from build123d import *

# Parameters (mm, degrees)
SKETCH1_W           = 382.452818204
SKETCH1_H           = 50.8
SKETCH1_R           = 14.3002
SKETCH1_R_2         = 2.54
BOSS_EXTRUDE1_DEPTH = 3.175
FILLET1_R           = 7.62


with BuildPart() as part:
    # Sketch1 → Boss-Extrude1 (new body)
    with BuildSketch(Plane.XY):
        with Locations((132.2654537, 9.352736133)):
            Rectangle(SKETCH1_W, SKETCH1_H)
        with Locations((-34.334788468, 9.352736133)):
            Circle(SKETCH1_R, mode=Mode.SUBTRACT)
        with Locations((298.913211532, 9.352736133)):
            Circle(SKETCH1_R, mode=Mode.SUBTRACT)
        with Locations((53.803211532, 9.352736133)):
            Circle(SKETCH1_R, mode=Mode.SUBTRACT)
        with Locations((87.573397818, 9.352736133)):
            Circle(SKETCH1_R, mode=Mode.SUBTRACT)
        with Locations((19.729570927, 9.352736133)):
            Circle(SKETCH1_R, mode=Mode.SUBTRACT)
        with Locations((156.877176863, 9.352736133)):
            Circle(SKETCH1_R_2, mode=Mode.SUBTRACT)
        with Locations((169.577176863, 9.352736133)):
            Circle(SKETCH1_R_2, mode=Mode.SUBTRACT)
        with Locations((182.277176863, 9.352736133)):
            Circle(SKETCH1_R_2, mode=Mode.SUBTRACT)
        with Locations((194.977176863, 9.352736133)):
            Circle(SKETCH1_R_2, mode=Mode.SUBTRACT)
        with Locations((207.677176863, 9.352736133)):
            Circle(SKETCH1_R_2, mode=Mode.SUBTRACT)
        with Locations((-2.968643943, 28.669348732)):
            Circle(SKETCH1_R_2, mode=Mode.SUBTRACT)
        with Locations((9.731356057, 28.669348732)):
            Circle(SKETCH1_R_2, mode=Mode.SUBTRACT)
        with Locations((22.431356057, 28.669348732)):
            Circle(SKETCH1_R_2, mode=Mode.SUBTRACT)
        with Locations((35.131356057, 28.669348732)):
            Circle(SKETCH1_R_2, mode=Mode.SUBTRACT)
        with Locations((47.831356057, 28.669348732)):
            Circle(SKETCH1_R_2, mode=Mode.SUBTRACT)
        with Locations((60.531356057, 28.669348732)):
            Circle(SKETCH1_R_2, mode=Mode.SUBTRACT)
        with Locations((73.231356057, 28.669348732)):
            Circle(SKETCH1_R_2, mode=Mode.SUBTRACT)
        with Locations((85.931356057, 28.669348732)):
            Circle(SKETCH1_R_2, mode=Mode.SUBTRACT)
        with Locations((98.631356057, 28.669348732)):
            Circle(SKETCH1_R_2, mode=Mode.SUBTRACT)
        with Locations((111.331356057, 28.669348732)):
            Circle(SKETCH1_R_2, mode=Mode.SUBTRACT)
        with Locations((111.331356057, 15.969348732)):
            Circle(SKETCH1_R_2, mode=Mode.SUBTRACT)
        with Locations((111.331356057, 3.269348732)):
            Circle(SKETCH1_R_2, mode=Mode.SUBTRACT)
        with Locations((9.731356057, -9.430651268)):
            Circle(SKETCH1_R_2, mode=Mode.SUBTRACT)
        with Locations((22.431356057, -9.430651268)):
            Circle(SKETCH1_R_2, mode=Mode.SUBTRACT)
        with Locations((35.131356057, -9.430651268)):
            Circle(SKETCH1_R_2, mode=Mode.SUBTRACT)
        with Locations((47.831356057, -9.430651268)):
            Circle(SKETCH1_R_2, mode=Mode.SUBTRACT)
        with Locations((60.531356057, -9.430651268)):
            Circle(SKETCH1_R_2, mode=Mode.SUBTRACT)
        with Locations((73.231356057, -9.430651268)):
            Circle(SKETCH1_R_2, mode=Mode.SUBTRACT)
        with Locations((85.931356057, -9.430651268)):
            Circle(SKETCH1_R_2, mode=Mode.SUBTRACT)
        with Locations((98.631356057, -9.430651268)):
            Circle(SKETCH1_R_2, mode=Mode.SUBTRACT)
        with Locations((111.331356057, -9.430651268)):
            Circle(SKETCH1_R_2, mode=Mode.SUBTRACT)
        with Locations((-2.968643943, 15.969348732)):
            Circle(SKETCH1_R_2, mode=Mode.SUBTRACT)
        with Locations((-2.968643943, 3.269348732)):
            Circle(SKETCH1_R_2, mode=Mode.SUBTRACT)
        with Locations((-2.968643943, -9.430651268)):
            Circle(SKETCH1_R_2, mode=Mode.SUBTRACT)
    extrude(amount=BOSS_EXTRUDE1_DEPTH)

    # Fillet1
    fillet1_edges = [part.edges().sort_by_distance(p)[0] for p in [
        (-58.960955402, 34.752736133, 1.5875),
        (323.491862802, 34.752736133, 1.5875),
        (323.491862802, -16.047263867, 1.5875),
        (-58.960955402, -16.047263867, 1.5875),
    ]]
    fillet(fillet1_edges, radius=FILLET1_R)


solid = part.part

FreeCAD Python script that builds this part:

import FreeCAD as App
import Part
import Sketcher
Q = App.Units.Quantity


def edges_at(feature, points):
    """Names of the edges that pass closest to the given points."""
    edges = feature.Shape.Edges
    near = lambda p: min(range(len(edges)), key=lambda i: edges[i].distToShape(Part.Vertex(*p))[0])
    return sorted({f"Edge{near(p) + 1}" for p in points})

doc = App.newDocument("Part")
params = doc.addObject("Spreadsheet::Sheet", "Params")
for row, (alias, value) in enumerate([
    ("sketch1_diameter", "0.2 in"),
    ("sketch1_height", "2 in"),
    ("sketch1_diameter2", "1.126 in"),
    ("pad1_length", "0.125 in"),
    ("fillet_radius", "0.3 in"),
], start=1):
    params.set(f"A{row}", alias)
    params.set(f"B{row}", "=" + value)
    params.setAlias(f"B{row}", alias)

body = doc.addObject("PartDesign::Body", "Body")

sketch1 = body.newObject("Sketcher::SketchObject", "Sketch")
sketch1.AttachmentSupport = (doc.getObject("XY_Plane"), [""])
sketch1.MapMode = "FlatFace"
sketch1.addGeometry([
    Part.LineSegment(App.Vector(-58.960955, 34.752736, 0), App.Vector(-58.960955, -16.047264, 0)),
    Part.LineSegment(App.Vector(-58.960955, -16.047264, 0), App.Vector(323.491863, -16.047264, 0)),
    Part.LineSegment(App.Vector(323.491863, -16.047264, 0), App.Vector(323.491863, 34.752736, 0)),
    Part.LineSegment(App.Vector(323.491863, 34.752736, 0), App.Vector(-58.960955, 34.752736, 0)),
    Part.Circle(App.Vector(-2.968644, -9.430651, 0), App.Vector(0, 0, 1), 2.54),
    Part.Circle(App.Vector(9.731356, -9.430651, 0), App.Vector(0, 0, 1), 2.54),
    Part.Circle(App.Vector(22.431356, -9.430651, 0), App.Vector(0, 0, 1), 2.54),
    Part.Circle(App.Vector(35.131356, -9.430651, 0), App.Vector(0, 0, 1), 2.54),
    Part.Circle(App.Vector(47.831356, -9.430651, 0), App.Vector(0, 0, 1), 2.54),
    Part.Circle(App.Vector(60.531356, -9.430651, 0), App.Vector(0, 0, 1), 2.54),
    Part.Circle(App.Vector(73.231356, -9.430651, 0), App.Vector(0, 0, 1), 2.54),
    Part.Circle(App.Vector(85.931356, -9.430651, 0), App.Vector(0, 0, 1), 2.54),
    Part.Circle(App.Vector(98.631356, -9.430651, 0), App.Vector(0, 0, 1), 2.54),
    Part.Circle(App.Vector(111.331356, -9.430651, 0), App.Vector(0, 0, 1), 2.54),
    Part.Circle(App.Vector(-2.968644, 3.269349, 0), App.Vector(0, 0, 1), 2.54),
    Part.Circle(App.Vector(-34.334788, 9.352736, 0), App.Vector(0, 0, 1), 14.3002),
    Part.Circle(App.Vector(19.729571, 9.352736, 0), App.Vector(0, 0, 1), 14.3002),
    Part.Circle(App.Vector(111.331356, 3.269349, 0), App.Vector(0, 0, 1), 2.54),
    Part.Circle(App.Vector(53.803212, 9.352736, 0), App.Vector(0, 0, 1), 14.3002),
    Part.Circle(App.Vector(87.573398, 9.352736, 0), App.Vector(0, 0, 1), 14.3002),
    Part.Circle(App.Vector(156.877177, 9.352736, 0), App.Vector(0, 0, 1), 2.54),
    Part.Circle(App.Vector(169.577177, 9.352736, 0), App.Vector(0, 0, 1), 2.54),
    Part.Circle(App.Vector(182.277177, 9.352736, 0), App.Vector(0, 0, 1), 2.54),
    Part.Circle(App.Vector(194.977177, 9.352736, 0), App.Vector(0, 0, 1), 2.54),
    Part.Circle(App.Vector(207.677177, 9.352736, 0), App.Vector(0, 0, 1), 2.54),
    Part.Circle(App.Vector(298.913212, 9.352736, 0), App.Vector(0, 0, 1), 14.3002),
    Part.Circle(App.Vector(-2.968644, 15.969349, 0), App.Vector(0, 0, 1), 2.54),
    Part.Circle(App.Vector(111.331356, 15.969349, 0), App.Vector(0, 0, 1), 2.54),
    Part.Circle(App.Vector(-2.968644, 28.669349, 0), App.Vector(0, 0, 1), 2.54),
    Part.Circle(App.Vector(9.731356, 28.669349, 0), App.Vector(0, 0, 1), 2.54),
    Part.Circle(App.Vector(22.431356, 28.669349, 0), App.Vector(0, 0, 1), 2.54),
    Part.Circle(App.Vector(35.131356, 28.669349, 0), App.Vector(0, 0, 1), 2.54),
    Part.Circle(App.Vector(47.831356, 28.669349, 0), App.Vector(0, 0, 1), 2.54),
    Part.Circle(App.Vector(60.531356, 28.669349, 0), App.Vector(0, 0, 1), 2.54),
    Part.Circle(App.Vector(73.231356, 28.669349, 0), App.Vector(0, 0, 1), 2.54),
    Part.Circle(App.Vector(85.931356, 28.669349, 0), App.Vector(0, 0, 1), 2.54),
    Part.Circle(App.Vector(98.631356, 28.669349, 0), App.Vector(0, 0, 1), 2.54),
    Part.Circle(App.Vector(111.331356, 28.669349, 0), App.Vector(0, 0, 1), 2.54),
], False)
sketch1.addConstraint([
    Sketcher.Constraint("Coincident", 0, 2, 1, 1),
    Sketcher.Constraint("Coincident", 1, 2, 2, 1),
    Sketcher.Constraint("Coincident", 2, 2, 3, 1),
    Sketcher.Constraint("Coincident", 3, 2, 0, 1),
    Sketcher.Constraint("Vertical", 0),
    Sketcher.Constraint("Horizontal", 1),
    Sketcher.Constraint("Vertical", 2),
    Sketcher.Constraint("Horizontal", 3),
    Sketcher.Constraint("Equal", 4, 5),
    Sketcher.Constraint("Equal", 5, 6),
    Sketcher.Constraint("Equal", 6, 7),
    Sketcher.Constraint("Equal", 7, 8),
    Sketcher.Constraint("Equal", 8, 9),
    Sketcher.Constraint("Equal", 9, 10),
    Sketcher.Constraint("Equal", 10, 11),
    Sketcher.Constraint("Equal", 11, 12),
    Sketcher.Constraint("Equal", 12, 13),
    Sketcher.Constraint("Equal", 13, 14),
    Sketcher.Constraint("Equal", 15, 16),
    Sketcher.Constraint("Equal", 14, 17),
    Sketcher.Constraint("Equal", 16, 18),
    Sketcher.Constraint("Equal", 18, 19),
    Sketcher.Constraint("Equal", 17, 20),
    Sketcher.Constraint("Equal", 20, 21),
    Sketcher.Constraint("Equal", 21, 22),
    Sketcher.Constraint("Equal", 22, 23),
    Sketcher.Constraint("Equal", 23, 24),
    Sketcher.Constraint("Equal", 19, 25),
    Sketcher.Constraint("Equal", 24, 26),
    Sketcher.Constraint("Equal", 26, 27),
    Sketcher.Constraint("Equal", 27, 28),
    Sketcher.Constraint("Equal", 28, 29),
    Sketcher.Constraint("Equal", 29, 30),
    Sketcher.Constraint("Equal", 30, 31),
    Sketcher.Constraint("Equal", 31, 32),
    Sketcher.Constraint("Equal", 32, 33),
    Sketcher.Constraint("Equal", 33, 34),
    Sketcher.Constraint("Equal", 34, 35),
    Sketcher.Constraint("Equal", 35, 36),
    Sketcher.Constraint("Equal", 36, 37),
    Sketcher.Constraint("Horizontal", 4, 3, 5, 3),
    Sketcher.Constraint("Horizontal", 5, 3, 6, 3),
    Sketcher.Constraint("Horizontal", 6, 3, 7, 3),
    Sketcher.Constraint("Horizontal", 7, 3, 8, 3),
    Sketcher.Constraint("Horizontal", 8, 3, 9, 3),
    Sketcher.Constraint("Horizontal", 9, 3, 10, 3),
    Sketcher.Constraint("Horizontal", 10, 3, 11, 3),
    Sketcher.Constraint("Horizontal", 11, 3, 12, 3),
    Sketcher.Constraint("Horizontal", 12, 3, 13, 3),
    Sketcher.Constraint("Horizontal", 15, 3, 16, 3),
    Sketcher.Constraint("Horizontal", 14, 3, 17, 3),
    Sketcher.Constraint("Horizontal", 16, 3, 18, 3),
    Sketcher.Constraint("Horizontal", 18, 3, 19, 3),
    Sketcher.Constraint("Horizontal", 19, 3, 20, 3),
    Sketcher.Constraint("Horizontal", 20, 3, 21, 3),
    Sketcher.Constraint("Horizontal", 21, 3, 22, 3),
    Sketcher.Constraint("Horizontal", 22, 3, 23, 3),
    Sketcher.Constraint("Horizontal", 23, 3, 24, 3),
    Sketcher.Constraint("Horizontal", 24, 3, 25, 3),
    Sketcher.Constraint("Horizontal", 26, 3, 27, 3),
    Sketcher.Constraint("Horizontal", 28, 3, 29, 3),
    Sketcher.Constraint("Horizontal", 29, 3, 30, 3),
    Sketcher.Constraint("Horizontal", 30, 3, 31, 3),
    Sketcher.Constraint("Horizontal", 31, 3, 32, 3),
    Sketcher.Constraint("Horizontal", 32, 3, 33, 3),
    Sketcher.Constraint("Horizontal", 33, 3, 34, 3),
    Sketcher.Constraint("Horizontal", 34, 3, 35, 3),
    Sketcher.Constraint("Horizontal", 35, 3, 36, 3),
    Sketcher.Constraint("Horizontal", 36, 3, 37, 3),
    Sketcher.Constraint("Vertical", 4, 3, 14, 3),
    Sketcher.Constraint("Vertical", 13, 3, 17, 3),
    Sketcher.Constraint("Vertical", 14, 3, 26, 3),
    Sketcher.Constraint("Vertical", 17, 3, 27, 3),
    Sketcher.Constraint("Vertical", 26, 3, 28, 3),
    Sketcher.Constraint("Vertical", 5, 3, 29, 3),
    Sketcher.Constraint("Vertical", 6, 3, 30, 3),
    Sketcher.Constraint("Vertical", 7, 3, 31, 3),
    Sketcher.Constraint("Vertical", 8, 3, 32, 3),
    Sketcher.Constraint("Vertical", 9, 3, 33, 3),
    Sketcher.Constraint("Vertical", 10, 3, 34, 3),
    Sketcher.Constraint("Vertical", 11, 3, 35, 3),
    Sketcher.Constraint("Vertical", 12, 3, 36, 3),
    Sketcher.Constraint("Vertical", 27, 3, 37, 3),
    Sketcher.Constraint("Diameter", 4, Q("0.2 in")),
    Sketcher.Constraint("DistanceY", 0, 2, 0, 1, Q("2 in")),
    Sketcher.Constraint("Diameter", 15, Q("1.126 in")),
    Sketcher.Constraint("DistanceX", 4, 3, 6, 3, Q("1 in")),
    Sketcher.Constraint("DistanceX", 5, 3, 7, 3, Q("1 in")),
    Sketcher.Constraint("DistanceX", 6, 3, 8, 3, Q("1 in")),
    Sketcher.Constraint("DistanceX", 7, 3, 9, 3, Q("1 in")),
    Sketcher.Constraint("DistanceX", 8, 3, 10, 3, Q("1 in")),
    Sketcher.Constraint("DistanceX", 9, 3, 11, 3, Q("1 in")),
    Sketcher.Constraint("DistanceX", 10, 3, 12, 3, Q("1 in")),
    Sketcher.Constraint("DistanceX", 11, 3, 13, 3, Q("1 in")),
    Sketcher.Constraint("DistanceX", 20, 3, 22, 3, Q("1 in")),
    Sketcher.Constraint("DistanceX", 21, 3, 23, 3, Q("1 in")),
    Sketcher.Constraint("DistanceX", 22, 3, 24, 3, Q("1 in")),
    Sketcher.Constraint("DistanceY", 4, 3, 26, 3, Q("1 in")),
    Sketcher.Constraint("DistanceY", 14, 3, 28, 3, Q("1 in")),
    Sketcher.Constraint("DistanceY", 0, 2, 15, 3, Q("1 in")),
    Sketcher.Constraint("DistanceX", 4, 3, 5, 3, Q("0.5 in")),
    Sketcher.Constraint("DistanceY", 4, 3, 14, 3, Q("0.5 in")),
    Sketcher.Constraint("DistanceX", 20, 3, 21, 3, Q("0.5 in")),
    Sketcher.Constraint("DistanceX", -1, 1, 1, 2, Q("12.7359001 in")),
    Sketcher.Constraint("DistanceX", 1, 1, 1, 2, 382.452818),
    Sketcher.Constraint("DistanceY", 4, 3, -1, 1, 9.430651),
    Sketcher.Constraint("DistanceX", 15, 3, -1, 1, 34.334788),
    Sketcher.Constraint("DistanceX", -1, 1, 16, 3, 19.729571),
    Sketcher.Constraint("DistanceX", -1, 1, 18, 3, 53.803212),
    Sketcher.Constraint("DistanceX", -1, 1, 25, 3, 298.913212),
    Sketcher.Constraint("DistanceX", 11, 3, 19, 3, 1.642042),
    Sketcher.Constraint("DistanceX", 17, 3, 20, 3, 45.545821),
    Sketcher.Constraint("DistanceX", 0, 2, 4, 3, 55.992311),
    Sketcher.Constraint("DistanceY", -1, 1, 15, 3, 9.352736),
])
sketch1.setExpression("Constraints[83]", "Params.sketch1_diameter")
sketch1.setExpression("Constraints[84]", "Params.sketch1_height")
sketch1.setExpression("Constraints[85]", "Params.sketch1_diameter2")
pad1 = body.newObject("PartDesign::Pad", "Pad")
pad1.Profile = sketch1
pad1.setExpression("Length", "Params.pad1_length")
doc.recompute()

fillet = body.newObject("PartDesign::Fillet", "Fillet")
fillet.Base = (pad1, edges_at(pad1, [
    (-58.961, 34.753, 1.587),
    (323.492, 34.753, 1.587),
    (323.492, -16.047, 1.587),
    (-58.961, -16.047, 1.587),
]))
fillet.setExpression("Radius", "Params.fillet_radius")

doc.recompute()
